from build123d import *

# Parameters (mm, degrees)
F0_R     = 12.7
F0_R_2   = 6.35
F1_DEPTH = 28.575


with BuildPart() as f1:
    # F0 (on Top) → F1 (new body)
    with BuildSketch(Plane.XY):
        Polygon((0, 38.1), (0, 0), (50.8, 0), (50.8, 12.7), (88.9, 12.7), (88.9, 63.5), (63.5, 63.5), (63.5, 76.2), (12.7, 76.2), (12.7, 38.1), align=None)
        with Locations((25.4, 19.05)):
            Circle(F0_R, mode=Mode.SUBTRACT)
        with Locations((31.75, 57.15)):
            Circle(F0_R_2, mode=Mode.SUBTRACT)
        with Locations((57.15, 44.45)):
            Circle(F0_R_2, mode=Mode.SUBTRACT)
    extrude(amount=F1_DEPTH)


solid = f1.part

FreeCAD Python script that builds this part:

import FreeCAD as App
import Part
import Sketcher

V = App.Vector
Q = App.Units.Quantity


def add_polygon(sketch, points):
    """Adds a closed chain of lines whose ends are joined by coincident constraints."""
    first, n = sketch.GeometryCount, len(points)
    for a, b in zip(points, points[1:] + points[:1]):
        sketch.addGeometry(Part.LineSegment(App.Vector(*a, 0), App.Vector(*b, 0)), False)
    for i in range(n):
        sketch.addConstraint(Sketcher.Constraint("Coincident", first + i, 2, first + (i + 1) % n, 1))

doc = App.newDocument("Part")
body = doc.addObject("PartDesign::Body", "Body")

# Sketch on XY plane
sketch1 = body.newObject("Sketcher::SketchObject", "Sketch")
sketch1.AttachmentSupport = (doc.getObject("XY_Plane"), [""])
sketch1.MapMode = "FlatFace"
add_polygon(sketch1, [(0, 38), (0, 0), (51, 0), (51, 13), (89, 13), (89, 64), (64, 64), (64, 76), (13, 76), (13, 38)])  # lines 0-9
sketch1.addGeometry(Part.Circle(V(25, 19, 0), V(0, 0, 1), 13), False)  # 10
sketch1.addGeometry(Part.Circle(V(32, 57, 0), V(0, 0, 1), 6), False)  # 11
sketch1.addGeometry(Part.Circle(V(57, 44, 0), V(0, 0, 1), 6), False)  # 12
sketch1.addConstraint([
    Sketcher.Constraint("Vertical", 0),
    Sketcher.Constraint("Horizontal", 1),
    Sketcher.Constraint("Vertical", 2),
    Sketcher.Constraint("Horizontal", 3),
    Sketcher.Constraint("Vertical", 4),
    Sketcher.Constraint("Horizontal", 5),
    Sketcher.Constraint("Vertical", 6),
    Sketcher.Constraint("Horizontal", 7),
    Sketcher.Constraint("Vertical", 8),
    Sketcher.Constraint("Horizontal", 9),
    Sketcher.Constraint("Coincident", 0, 2, -1, 1),
    Sketcher.Constraint("Equal", 11, 12),
    Sketcher.Constraint("Equal", 1, 7),
    Sketcher.Constraint("Equal", 3, 0),
    Sketcher.Constraint("Equal", 9, 2),
    Sketcher.Constraint("Equal", 7, 4),
    Sketcher.Constraint("Equal", 2, 6),
    Sketcher.Constraint("Equal", 0, 8),
    Sketcher.Constraint("Diameter", 10, Q("1 in")),
    Sketcher.Constraint("Diameter", 11, Q("0.5 in")),
    Sketcher.Constraint("DistanceX", 1, 1, 1, 2, Q("2 in")),
    Sketcher.Constraint("DistanceX", 3, 1, 3, 2, Q("1.5 in")),
    Sketcher.Constraint("DistanceX", -1, 1, 10, 3, Q("1 in")),
    Sketcher.Constraint("DistanceX", 11, 3, 12, 3, Q("1 in")),
    Sketcher.Constraint("DistanceY", 10, 3, 12, 3, Q("1 in")),
    Sketcher.Constraint("DistanceY", 10, 3, 11, 3, Q("1.5 in")),
    Sketcher.Constraint("DistanceY", -1, 1, 10, 3, Q("0.75 in")),
    Sketcher.Constraint("DistanceX", -1, 1, 11, 3, Q("1.25 in")),
])
pad1 = body.newObject("PartDesign::Pad", "Pad")
pad1.Profile = sketch1
pad1.Length = Q("1.125 in")

doc.recompute()
